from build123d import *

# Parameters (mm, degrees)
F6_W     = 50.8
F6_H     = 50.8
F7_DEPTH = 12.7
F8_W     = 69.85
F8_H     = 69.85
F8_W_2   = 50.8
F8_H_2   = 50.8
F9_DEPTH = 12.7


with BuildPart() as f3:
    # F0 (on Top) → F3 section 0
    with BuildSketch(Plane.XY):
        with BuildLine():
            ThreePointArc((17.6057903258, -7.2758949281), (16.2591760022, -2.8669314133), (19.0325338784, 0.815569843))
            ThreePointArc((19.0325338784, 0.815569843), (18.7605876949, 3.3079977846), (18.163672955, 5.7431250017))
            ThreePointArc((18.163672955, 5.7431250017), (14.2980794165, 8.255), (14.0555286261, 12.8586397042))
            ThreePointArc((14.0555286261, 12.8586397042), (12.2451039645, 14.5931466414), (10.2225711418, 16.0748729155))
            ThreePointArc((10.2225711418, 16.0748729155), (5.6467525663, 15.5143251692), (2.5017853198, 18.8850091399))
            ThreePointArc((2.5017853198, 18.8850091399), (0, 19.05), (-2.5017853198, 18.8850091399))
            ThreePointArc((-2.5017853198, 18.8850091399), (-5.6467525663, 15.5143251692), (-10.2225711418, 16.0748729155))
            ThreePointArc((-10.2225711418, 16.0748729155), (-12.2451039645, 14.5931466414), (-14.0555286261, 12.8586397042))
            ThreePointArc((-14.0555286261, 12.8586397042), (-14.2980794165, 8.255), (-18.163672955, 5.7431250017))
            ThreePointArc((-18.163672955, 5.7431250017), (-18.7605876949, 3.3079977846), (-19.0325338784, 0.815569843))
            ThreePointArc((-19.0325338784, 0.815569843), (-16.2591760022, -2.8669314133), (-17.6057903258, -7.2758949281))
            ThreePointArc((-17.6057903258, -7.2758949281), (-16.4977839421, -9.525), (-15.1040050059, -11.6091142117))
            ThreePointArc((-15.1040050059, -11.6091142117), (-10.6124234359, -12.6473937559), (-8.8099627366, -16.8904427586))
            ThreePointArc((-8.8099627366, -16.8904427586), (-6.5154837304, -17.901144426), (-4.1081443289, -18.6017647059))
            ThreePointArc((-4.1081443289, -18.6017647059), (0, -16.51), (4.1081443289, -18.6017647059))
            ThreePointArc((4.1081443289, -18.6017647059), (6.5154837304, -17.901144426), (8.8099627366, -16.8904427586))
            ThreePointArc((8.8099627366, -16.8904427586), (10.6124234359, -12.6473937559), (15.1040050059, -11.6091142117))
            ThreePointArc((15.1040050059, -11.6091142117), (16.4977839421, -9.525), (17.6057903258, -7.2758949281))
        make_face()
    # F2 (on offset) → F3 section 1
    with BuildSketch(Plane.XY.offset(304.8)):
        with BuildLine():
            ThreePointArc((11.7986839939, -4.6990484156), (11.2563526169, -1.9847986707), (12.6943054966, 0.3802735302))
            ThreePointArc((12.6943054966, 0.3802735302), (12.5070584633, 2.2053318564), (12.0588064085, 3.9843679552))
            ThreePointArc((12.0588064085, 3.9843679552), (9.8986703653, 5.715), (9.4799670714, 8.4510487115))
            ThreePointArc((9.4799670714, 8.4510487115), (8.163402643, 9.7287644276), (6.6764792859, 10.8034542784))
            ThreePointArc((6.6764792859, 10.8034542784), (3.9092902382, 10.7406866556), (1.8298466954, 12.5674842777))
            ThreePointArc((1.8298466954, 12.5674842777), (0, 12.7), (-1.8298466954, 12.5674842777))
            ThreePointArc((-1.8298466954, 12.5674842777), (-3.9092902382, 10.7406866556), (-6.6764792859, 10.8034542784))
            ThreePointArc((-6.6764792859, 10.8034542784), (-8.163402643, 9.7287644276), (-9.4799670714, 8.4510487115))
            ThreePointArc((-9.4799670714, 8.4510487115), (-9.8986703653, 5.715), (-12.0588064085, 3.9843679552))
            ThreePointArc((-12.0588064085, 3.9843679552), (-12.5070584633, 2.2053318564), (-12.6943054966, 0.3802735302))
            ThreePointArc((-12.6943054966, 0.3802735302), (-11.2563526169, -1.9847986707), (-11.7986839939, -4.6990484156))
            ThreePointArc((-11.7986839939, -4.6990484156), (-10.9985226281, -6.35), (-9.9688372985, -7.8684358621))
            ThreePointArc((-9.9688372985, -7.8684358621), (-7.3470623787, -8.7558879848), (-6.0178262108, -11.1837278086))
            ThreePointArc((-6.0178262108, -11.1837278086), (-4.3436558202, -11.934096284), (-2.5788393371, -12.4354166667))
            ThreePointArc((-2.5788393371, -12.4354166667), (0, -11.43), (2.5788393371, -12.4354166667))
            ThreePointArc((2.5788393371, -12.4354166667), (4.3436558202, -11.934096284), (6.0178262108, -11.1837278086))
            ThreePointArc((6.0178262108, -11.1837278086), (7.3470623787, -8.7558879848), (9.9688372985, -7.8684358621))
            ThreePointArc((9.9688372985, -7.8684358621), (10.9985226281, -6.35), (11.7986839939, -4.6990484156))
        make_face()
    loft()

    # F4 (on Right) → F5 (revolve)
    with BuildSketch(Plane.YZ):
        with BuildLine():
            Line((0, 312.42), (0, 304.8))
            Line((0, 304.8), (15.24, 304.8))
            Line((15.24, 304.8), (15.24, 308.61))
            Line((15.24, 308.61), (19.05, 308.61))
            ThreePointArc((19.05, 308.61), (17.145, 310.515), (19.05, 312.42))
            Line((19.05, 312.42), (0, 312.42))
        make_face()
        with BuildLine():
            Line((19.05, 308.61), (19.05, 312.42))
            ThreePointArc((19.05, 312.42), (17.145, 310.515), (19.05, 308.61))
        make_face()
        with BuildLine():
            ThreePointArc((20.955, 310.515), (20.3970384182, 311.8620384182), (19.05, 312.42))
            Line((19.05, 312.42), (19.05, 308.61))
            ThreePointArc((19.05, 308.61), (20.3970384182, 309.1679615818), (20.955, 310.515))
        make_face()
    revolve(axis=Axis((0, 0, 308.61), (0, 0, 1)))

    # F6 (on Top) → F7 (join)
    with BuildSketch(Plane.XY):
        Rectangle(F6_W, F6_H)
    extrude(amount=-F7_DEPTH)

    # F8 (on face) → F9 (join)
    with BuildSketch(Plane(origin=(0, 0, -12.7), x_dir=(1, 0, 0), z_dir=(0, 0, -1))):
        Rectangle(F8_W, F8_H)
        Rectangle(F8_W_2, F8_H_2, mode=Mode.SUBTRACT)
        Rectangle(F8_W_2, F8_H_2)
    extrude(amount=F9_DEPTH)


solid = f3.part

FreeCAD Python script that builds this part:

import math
import FreeCAD as App
import Part
import Sketcher
Q = App.Units.Quantity

doc = App.newDocument("Part")
body = doc.addObject("PartDesign::Body", "Body")

# Sketch on XY plane
sketch1 = body.newObject("Sketcher::SketchObject", "Sketch")
sketch1.AttachmentSupport = (doc.getObject("XY_Plane"), [""])
sketch1.MapMode = "FlatFace"
sketch1.addGeometry(Part.ArcOfCircle(Part.Circle(App.Vector(21, -4, 0), App.Vector(0, 0, 1), 5), math.radians(116), math.radians(224)), False)
sketch1.addGeometry(Part.ArcOfCircle(Part.Circle(App.Vector(0, 0, 0), App.Vector(0, 0, 1), 19), math.radians(2.45), math.radians(17.55)), False)
sketch1.addGeometry(Part.ArcOfCircle(Part.Circle(App.Vector(19, 11, 0), App.Vector(0, 0, 1), 5), math.radians(156), math.radians(264)), False)
sketch1.addGeometry(Part.ArcOfCircle(Part.Circle(App.Vector(0, 0, 0), App.Vector(0, 0, 1), 19), math.radians(42.45), math.radians(57.55)), False)
sketch1.addGeometry(Part.ArcOfCircle(Part.Circle(App.Vector(7, 20, 0), App.Vector(0, 0, 1), 5), math.radians(-164), math.radians(-56)), False)
sketch1.addGeometry(Part.ArcOfCircle(Part.Circle(App.Vector(0, 0, 0), App.Vector(0, 0, 1), 19), math.radians(82.45), math.radians(97.55)), False)
sketch1.addGeometry(Part.ArcOfCircle(Part.Circle(App.Vector(-7, 20, 0), App.Vector(0, 0, 1), 5), math.radians(-124), math.radians(-16)), False)
sketch1.addGeometry(Part.ArcOfCircle(Part.Circle(App.Vector(0, 0, 0), App.Vector(0, 0, 1), 19), math.radians(122.45), math.radians(137.55)), False)
sketch1.addGeometry(Part.ArcOfCircle(Part.Circle(App.Vector(-19, 11, 0), App.Vector(0, 0, 1), 5), math.radians(-84), math.radians(24)), False)
sketch1.addGeometry(Part.ArcOfCircle(Part.Circle(App.Vector(0, 0, 0), App.Vector(0, 0, 1), 19), math.radians(162.45), math.radians(177.55)), False)
sketch1.addGeometry(Part.ArcOfCircle(Part.Circle(App.Vector(-21, -4, 0), App.Vector(0, 0, 1), 5), math.radians(-44), math.radians(64)), False)
sketch1.addGeometry(Part.ArcOfCircle(Part.Circle(App.Vector(0, 0, 0), App.Vector(0, 0, 1), 19), math.radians(-157.55), math.radians(-142.45)), False)
sketch1.addGeometry(Part.ArcOfCircle(Part.Circle(App.Vector(-14, -17, 0), App.Vector(0, 0, 1), 5), math.radians(-4), math.radians(104)), False)
sketch1.addGeometry(Part.ArcOfCircle(Part.Circle(App.Vector(0, 0, 0), App.Vector(0, 0, 1), 19), math.radians(-117.55), math.radians(-102.45)), False)
sketch1.addGeometry(Part.ArcOfCircle(Part.Circle(App.Vector(0, -22, 0), App.Vector(0, 0, 1), 5), math.radians(36), math.radians(144)), False)
sketch1.addGeometry(Part.ArcOfCircle(Part.Circle(App.Vector(0, 0, 0), App.Vector(0, 0, 1), 19), math.radians(-77.55), math.radians(-62.45)), False)
sketch1.addGeometry(Part.ArcOfCircle(Part.Circle(App.Vector(14, -17, 0), App.Vector(0, 0, 1), 5), math.radians(76), math.radians(184)), False)
sketch1.addGeometry(Part.ArcOfCircle(Part.Circle(App.Vector(0, 0, 0), App.Vector(0, 0, 1), 19), math.radians(-37.55), math.radians(-22.45)), False)
sketch1.addConstraint(Sketcher.Constraint("Coincident", 0, 1, 1, 1))
sketch1.addConstraint(Sketcher.Constraint("Coincident", 1, 2, 2, 2))
sketch1.addConstraint(Sketcher.Constraint("Coincident", 2, 1, 3, 1))
sketch1.addConstraint(Sketcher.Constraint("Coincident", 3, 2, 4, 2))
sketch1.addConstraint(Sketcher.Constraint("Coincident", 4, 1, 5, 1))
sketch1.addConstraint(Sketcher.Constraint("Coincident", 5, 2, 6, 2))
sketch1.addConstraint(Sketcher.Constraint("Coincident", 6, 1, 7, 1))
sketch1.addConstraint(Sketcher.Constraint("Coincident", 7, 2, 8, 2))
sketch1.addConstraint(Sketcher.Constraint("Coincident", 8, 1, 9, 1))
sketch1.addConstraint(Sketcher.Constraint("Coincident", 9, 2, 10, 2))
sketch1.addConstraint(Sketcher.Constraint("Coincident", 10, 1, 11, 1))
sketch1.addConstraint(Sketcher.Constraint("Coincident", 11, 2, 12, 2))
sketch1.addConstraint(Sketcher.Constraint("Coincident", 12, 1, 13, 1))
sketch1.addConstraint(Sketcher.Constraint("Coincident", 13, 2, 14, 2))
sketch1.addConstraint(Sketcher.Constraint("Coincident", 14, 1, 15, 1))
sketch1.addConstraint(Sketcher.Constraint("Coincident", 15, 2, 16, 2))
sketch1.addConstraint(Sketcher.Constraint("Coincident", 16, 1, 17, 1))
sketch1.addConstraint(Sketcher.Constraint("Coincident", 17, 2, 0, 2))
sketch1.addConstraint(Sketcher.Constraint("Coincident", 1, 3, -1, 1))
sketch1.addConstraint(Sketcher.Constraint("Coincident", 3, 3, -1, 1))
sketch1.addConstraint(Sketcher.Constraint("Coincident", 5, 3, -1, 1))
sketch1.addConstraint(Sketcher.Constraint("Coincident", 7, 3, -1, 1))
sketch1.addConstraint(Sketcher.Constraint("Coincident", 9, 3, -1, 1))
sketch1.addConstraint(Sketcher.Constraint("Coincident", 11, 3, -1, 1))
sketch1.addConstraint(Sketcher.Constraint("Coincident", 13, 3, -1, 1))
sketch1.addConstraint(Sketcher.Constraint("Coincident", 15, 3, -1, 1))
sketch1.addConstraint(Sketcher.Constraint("Coincident", 17, 3, -1, 1))
sketch1.addConstraint(Sketcher.Constraint("Equal", 0, 2))
sketch1.addConstraint(Sketcher.Constraint("Equal", 1, 3))
sketch1.addConstraint(Sketcher.Constraint("Equal", 2, 4))
sketch1.addConstraint(Sketcher.Constraint("Equal", 3, 5))
sketch1.addConstraint(Sketcher.Constraint("Equal", 4, 6))
sketch1.addConstraint(Sketcher.Constraint("Equal", 5, 7))
sketch1.addConstraint(Sketcher.Constraint("Equal", 6, 8))
sketch1.addConstraint(Sketcher.Constraint("Equal", 7, 9))
sketch1.addConstraint(Sketcher.Constraint("Equal", 8, 10))
sketch1.addConstraint(Sketcher.Constraint("Equal", 9, 11))
sketch1.addConstraint(Sketcher.Constraint("Equal", 10, 12))
sketch1.addConstraint(Sketcher.Constraint("Equal", 11, 13))
sketch1.addConstraint(Sketcher.Constraint("Equal", 12, 14))
sketch1.addConstraint(Sketcher.Constraint("Equal", 13, 15))
sketch1.addConstraint(Sketcher.Constraint("Equal", 14, 16))
sketch1.addConstraint(Sketcher.Constraint("Equal", 15, 17))
sketch1.addConstraint(Sketcher.Constraint("Symmetric", 4, 3, 6, 3, -2))
sketch1.addConstraint(Sketcher.Constraint("Symmetric", 2, 3, 8, 3, -2))
sketch1.addConstraint(Sketcher.Constraint("Symmetric", 0, 3, 10, 3, -2))
sketch1.addConstraint(Sketcher.Constraint("Symmetric", 12, 3, 16, 3, -2))
sketch1.addConstraint(Sketcher.Constraint("PointOnObject", 14, 3, -2))
sketch1.addConstraint(Sketcher.Constraint("Radius", 0, Q("0.2 in")))
sketch1.addConstraint(Sketcher.Constraint("Radius", 1, Q("0.75 in")))
sketch1.addConstraint(Sketcher.Constraint("DistanceY", 14, 3, -1, 1, Q("0.85 in")))
sketch1.addConstraint(Sketcher.Constraint("DistanceY", -1, 1, 2, 3, Q("0.425 in")))
sketch1.addConstraint(Sketcher.Constraint("DistanceX", -1, 1, 0, 3, 21.261999))
sketch1.addConstraint(Sketcher.Constraint("DistanceY", 12, 3, -1, 1, 16.5389))
sketch1.addConstraint(Sketcher.Constraint("DistanceX", 3, 2, 1, 2, 7.941102))
sketch1.addConstraint(Sketcher.Constraint("DistanceX", 6, 3, 4, 1, 9.886))
sketch1.addConstraint(Sketcher.Constraint("DistanceX", 8, 3, 10, 1, 1.091698))
sketch1.addConstraint(Sketcher.Constraint("DistanceX", -1, 1, 2, 3, 18.697488))
sketch1.addConstraint(Sketcher.Constraint("DistanceX", 16, 3, 0, 1, 5.154749))

# Sketch on XY plane
sketch2 = body.newObject("Sketcher::SketchObject", "Sketch001")
sketch2.AttachmentSupport = (doc.getObject("XY_Plane"), [""])
sketch2.MapMode = "FlatFace"
sketch2.AttachmentOffset = App.Placement(App.Vector(0, 0, 12 * 25.4), App.Rotation())
sketch2.addGeometry(Part.ArcOfCircle(Part.Circle(App.Vector(15, -2.6, 0), App.Vector(0, 0, 1), 3.8), math.radians(127), math.radians(213)), False)
sketch2.addGeometry(Part.ArcOfCircle(Part.Circle(App.Vector(0, 0, 0), App.Vector(0, 0, 1), 12.7), math.radians(1.72), math.radians(18.28)), False)
sketch2.addGeometry(Part.ArcOfCircle(Part.Circle(App.Vector(13.2, 7.6, 0), App.Vector(0, 0, 1), 3.8), math.radians(167), math.radians(253)), False)
sketch2.addGeometry(Part.ArcOfCircle(Part.Circle(App.Vector(0, 0, 0), App.Vector(0, 0, 1), 12.7), math.radians(41.72), math.radians(58.28)), False)
sketch2.addGeometry(Part.ArcOfCircle(Part.Circle(App.Vector(5.2, 14.3, 0), App.Vector(0, 0, 1), 3.8), math.radians(-153), math.radians(-67)), False)
sketch2.addGeometry(Part.ArcOfCircle(Part.Circle(App.Vector(0, 0, 0), App.Vector(0, 0, 1), 12.7), math.radians(81.72), math.radians(98.28)), False)
sketch2.addGeometry(Part.ArcOfCircle(Part.Circle(App.Vector(-5.2, 14.3, 0), App.Vector(0, 0, 1), 3.8), math.radians(-113), math.radians(-27)), False)
sketch2.addGeometry(Part.ArcOfCircle(Part.Circle(App.Vector(0, 0, 0), App.Vector(0, 0, 1), 12.7), math.radians(121.72), math.radians(138.28)), False)
sketch2.addGeometry(Part.ArcOfCircle(Part.Circle(App.Vector(-13.2, 7.6, 0), App.Vector(0, 0, 1), 3.8), math.radians(-73), math.radians(13)), False)
sketch2.addGeometry(Part.ArcOfCircle(Part.Circle(App.Vector(0, 0, 0), App.Vector(0, 0, 1), 12.7), math.radians(161.72), math.radians(178.28)), False)
sketch2.addGeometry(Part.ArcOfCircle(Part.Circle(App.Vector(-15, -2.6, 0), App.Vector(0, 0, 1), 3.8), math.radians(-33), math.radians(53)), False)
sketch2.addGeometry(Part.ArcOfCircle(Part.Circle(App.Vector(0, 0, 0), App.Vector(0, 0, 1), 12.7), math.radians(-158.28), math.radians(-141.72)), False)
sketch2.addGeometry(Part.ArcOfCircle(Part.Circle(App.Vector(-9.8, -11.7, 0), App.Vector(0, 0, 1), 3.8), math.radians(7), math.radians(93)), False)
sketch2.addGeometry(Part.ArcOfCircle(Part.Circle(App.Vector(0, 0, 0), App.Vector(0, 0, 1), 12.7), math.radians(-118.28), math.radians(-101.72)), False)
sketch2.addGeometry(Part.ArcOfCircle(Part.Circle(App.Vector(0, -15.2, 0), App.Vector(0, 0, 1), 3.8), math.radians(47), math.radians(133)), False)
sketch2.addGeometry(Part.ArcOfCircle(Part.Circle(App.Vector(0, 0, 0), App.Vector(0, 0, 1), 12.7), math.radians(-78.28), math.radians(-61.72)), False)
sketch2.addGeometry(Part.ArcOfCircle(Part.Circle(App.Vector(9.8, -11.7, 0), App.Vector(0, 0, 1), 3.8), math.radians(87), math.radians(173)), False)
sketch2.addGeometry(Part.ArcOfCircle(Part.Circle(App.Vector(0, 0, 0), App.Vector(0, 0, 1), 12.7), math.radians(-38.28), math.radians(-21.72)), False)
sketch2.addConstraint(Sketcher.Constraint("Coincident", 0, 1, 1, 1))
sketch2.addConstraint(Sketcher.Constraint("Coincident", 1, 2, 2, 2))
sketch2.addConstraint(Sketcher.Constraint("Coincident", 2, 1, 3, 1))
sketch2.addConstraint(Sketcher.Constraint("Coincident", 3, 2, 4, 2))
sketch2.addConstraint(Sketcher.Constraint("Coincident", 4, 1, 5, 1))
sketch2.addConstraint(Sketcher.Constraint("Coincident", 5, 2, 6, 2))
sketch2.addConstraint(Sketcher.Constraint("Coincident", 6, 1, 7, 1))
sketch2.addConstraint(Sketcher.Constraint("Coincident", 7, 2, 8, 2))
sketch2.addConstraint(Sketcher.Constraint("Coincident", 8, 1, 9, 1))
sketch2.addConstraint(Sketcher.Constraint("Coincident", 9, 2, 10, 2))
sketch2.addConstraint(Sketcher.Constraint("Coincident", 10, 1, 11, 1))
sketch2.addConstraint(Sketcher.Constraint("Coincident", 11, 2, 12, 2))
sketch2.addConstraint(Sketcher.Constraint("Coincident", 12, 1, 13, 1))
sketch2.addConstraint(Sketcher.Constraint("Coincident", 13, 2, 14, 2))
sketch2.addConstraint(Sketcher.Constraint("Coincident", 14, 1, 15, 1))
sketch2.addConstraint(Sketcher.Constraint("Coincident", 15, 2, 16, 2))
sketch2.addConstraint(Sketcher.Constraint("Coincident", 16, 1, 17, 1))
sketch2.addConstraint(Sketcher.Constraint("Coincident", 17, 2, 0, 2))
sketch2.addConstraint(Sketcher.Constraint("Coincident", 1, 3, -1, 1))
sketch2.addConstraint(Sketcher.Constraint("Coincident", 3, 3, -1, 1))
sketch2.addConstraint(Sketcher.Constraint("Coincident", 5, 3, -1, 1))
sketch2.addConstraint(Sketcher.Constraint("Coincident", 7, 3, -1, 1))
sketch2.addConstraint(Sketcher.Constraint("Coincident", 9, 3, -1, 1))
sketch2.addConstraint(Sketcher.Constraint("Coincident", 11, 3, -1, 1))
sketch2.addConstraint(Sketcher.Constraint("Coincident", 13, 3, -1, 1))
sketch2.addConstraint(Sketcher.Constraint("Coincident", 15, 3, -1, 1))
sketch2.addConstraint(Sketcher.Constraint("Coincident", 17, 3, -1, 1))
sketch2.addConstraint(Sketcher.Constraint("Equal", 0, 2))
sketch2.addConstraint(Sketcher.Constraint("Equal", 1, 3))
sketch2.addConstraint(Sketcher.Constraint("Equal", 2, 4))
sketch2.addConstraint(Sketcher.Constraint("Equal", 3, 5))
sketch2.addConstraint(Sketcher.Constraint("Equal", 4, 6))
sketch2.addConstraint(Sketcher.Constraint("Equal", 5, 7))
sketch2.addConstraint(Sketcher.Constraint("Equal", 6, 8))
sketch2.addConstraint(Sketcher.Constraint("Equal", 7, 9))
sketch2.addConstraint(Sketcher.Constraint("Equal", 8, 10))
sketch2.addConstraint(Sketcher.Constraint("Equal", 9, 11))
sketch2.addConstraint(Sketcher.Constraint("Equal", 10, 12))
sketch2.addConstraint(Sketcher.Constraint("Equal", 11, 13))
sketch2.addConstraint(Sketcher.Constraint("Equal", 12, 14))
sketch2.addConstraint(Sketcher.Constraint("Equal", 13, 15))
sketch2.addConstraint(Sketcher.Constraint("Equal", 14, 16))
sketch2.addConstraint(Sketcher.Constraint("Equal", 15, 17))
sketch2.addConstraint(Sketcher.Constraint("Symmetric", 4, 3, 6, 3, -2))
sketch2.addConstraint(Sketcher.Constraint("Symmetric", 2, 3, 8, 3, -2))
sketch2.addConstraint(Sketcher.Constraint("Symmetric", 0, 3, 10, 3, -2))
sketch2.addConstraint(Sketcher.Constraint("Symmetric", 12, 3, 16, 3, -2))
sketch2.addConstraint(Sketcher.Constraint("PointOnObject", 14, 3, -2))
sketch2.addConstraint(Sketcher.Constraint("Radius", 1, Q("0.5 in")))
sketch2.addConstraint(Sketcher.Constraint("Radius", 0, Q("0.15 in")))
sketch2.addConstraint(Sketcher.Constraint("DistanceY", -1, 1, 2, 3, Q("0.3 in")))
sketch2.addConstraint(Sketcher.Constraint("DistanceY", 14, 3, -1, 1, Q("0.6 in")))
sketch2.addConstraint(Sketcher.Constraint("DistanceX", 8, 3, 10, 1, Q("0.0551001 in")))
sketch2.addConstraint(Sketcher.Constraint("DistanceY", 0, 3, -1, 1, 2.646398))
sketch2.addConstraint(Sketcher.Constraint("DistanceX", 1, 2, 0, 1, 0.635499))
sketch2.addConstraint(Sketcher.Constraint("DistanceX", 10, 1, 12, 3, 2.002601))
sketch2.addConstraint(Sketcher.Constraint("DistanceY", 13, 2, 12, 3, 0.760899))
sketch2.addConstraint(Sketcher.Constraint("DistanceX", -1, 1, 3, 2, 6.676479))
sketch2.addConstraint(Sketcher.Constraint("DistanceX", 4, 3, 2, 3, 7.98584))

additiveloft = body.newObject("PartDesign::AdditiveLoft", "AdditiveLoft")
additiveloft.Profile = sketch1
additiveloft.Sections = [sketch2]

# Sketch on YZ plane
sketch3 = body.newObject("Sketcher::SketchObject", "Sketch002")
sketch3.AttachmentSupport = (doc.getObject("YZ_Plane"), [""])
sketch3.MapMode = "FlatFace"
sketch3.addGeometry(Part.LineSegment(App.Vector(0, 312.4, 0), App.Vector(0, 304.8, 0)), False)
sketch3.addGeometry(Part.LineSegment(App.Vector(0, 304.8, 0), App.Vector(15.2, 304.8, 0)), False)
sketch3.addGeometry(Part.LineSegment(App.Vector(15.2, 304.8, 0), App.Vector(15.2, 308.6, 0)), False)
sketch3.addGeometry(Part.LineSegment(App.Vector(15.2, 308.6, 0), App.Vector(19.1, 308.6, 0)), False)
sketch3.addGeometry(Part.ArcOfCircle(Part.Circle(App.Vector(19.1, 310.5, 0), App.Vector(0, 0, 1), 1.9), math.radians(-90), math.radians(0)), False)
sketch3.addGeometry(Part.ArcOfCircle(Part.Circle(App.Vector(19.1, 310.5, 0), App.Vector(0, 0, 1), 1.9), math.radians(0), math.radians(90)), False)
sketch3.addGeometry(Part.LineSegment(App.Vector(19.1, 312.4, 0), App.Vector(0, 312.4, 0)), False)
sketch3.addConstraint(Sketcher.Constraint("Coincident", 0, 2, 1, 1))
sketch3.addConstraint(Sketcher.Constraint("Coincident", 1, 2, 2, 1))
sketch3.addConstraint(Sketcher.Constraint("Coincident", 2, 2, 3, 1))
sketch3.addConstraint(Sketcher.Constraint("Tangent", 3, 2, 4, 1))
sketch3.addConstraint(Sketcher.Constraint("Tangent", 4, 2, 5, 1))
sketch3.addConstraint(Sketcher.Constraint("Tangent", 5, 2, 6, 1))
sketch3.addConstraint(Sketcher.Constraint("Coincident", 6, 2, 0, 1))
sketch3.addConstraint(Sketcher.Constraint("Vertical", 0))
sketch3.addConstraint(Sketcher.Constraint("Horizontal", 1))
sketch3.addConstraint(Sketcher.Constraint("Vertical", 2))
sketch3.addConstraint(Sketcher.Constraint("Horizontal", 3))
sketch3.addConstraint(Sketcher.Constraint("Horizontal", 6))
sketch3.addConstraint(Sketcher.Constraint("Equal", 4, 5))
sketch3.addConstraint(Sketcher.Constraint("PointOnObject", 0, 2, -2))
sketch3.addConstraint(Sketcher.Constraint("Horizontal", 5, 3, 4, 2))
sketch3.addConstraint(Sketcher.Constraint("Equal", 3, 2))
sketch3.addConstraint(Sketcher.Constraint("DistanceX", 1, 1, 1, 2, Q("0.6 in")))
sketch3.addConstraint(Sketcher.Constraint("DistanceY", 0, 2, 0, 1, Q("0.3 in")))
sketch3.addConstraint(Sketcher.Constraint("DistanceY", -1, 1, 0, 2, Q("12 in")))
sketch3.addConstraint(Sketcher.Constraint("Radius", 4, Q("0.075 in")))
revolution = body.newObject("PartDesign::Revolution", "Revolution")
revolution.Profile = sketch3
revolution.ReferenceAxis = (sketch3, ["V_Axis"])
revolution.Angle = 360

# Sketch on XY plane
sketch4 = body.newObject("Sketcher::SketchObject", "Sketch003")
sketch4.AttachmentSupport = (doc.getObject("XY_Plane"), [""])
sketch4.MapMode = "FlatFace"
sketch4.addGeometry(Part.LineSegment(App.Vector(-25, 25, 0), App.Vector(-25, -25, 0)), False)
sketch4.addGeometry(Part.LineSegment(App.Vector(-25, -25, 0), App.Vector(25, -25, 0)), False)
sketch4.addGeometry(Part.LineSegment(App.Vector(25, -25, 0), App.Vector(25, 25, 0)), False)
sketch4.addGeometry(Part.LineSegment(App.Vector(25, 25, 0), App.Vector(-25, 25, 0)), False)
sketch4.addConstraint(Sketcher.Constraint("Coincident", 0, 2, 1, 1))
sketch4.addConstraint(Sketcher.Constraint("Coincident", 1, 2, 2, 1))
sketch4.addConstraint(Sketcher.Constraint("Coincident", 2, 2, 3, 1))
sketch4.addConstraint(Sketcher.Constraint("Coincident", 3, 2, 0, 1))
sketch4.addConstraint(Sketcher.Constraint("Vertical", 0))
sketch4.addConstraint(Sketcher.Constraint("Horizontal", 1))
sketch4.addConstraint(Sketcher.Constraint("Vertical", 2))
sketch4.addConstraint(Sketcher.Constraint("Horizontal", 3))
sketch4.addConstraint(Sketcher.Constraint("Symmetric", 0, 2, 2, 2, -1, 1))
sketch4.addConstraint(Sketcher.Constraint("Equal", 3, 0))
sketch4.addConstraint(Sketcher.Constraint("DistanceX", 1, 1, 1, 2, Q("2 in")))
pad1 = body.newObject("PartDesign::Pad", "Pad")
pad1.Profile = sketch4
pad1.Length = Q("0.5 in")
pad1.Reversed = True

# Sketch on XY plane
sketch5 = body.newObject("Sketcher::SketchObject", "Sketch004")
sketch5.AttachmentSupport = (doc.getObject("XY_Plane"), [""])
sketch5.MapMode = "FlatFace"
sketch5.AttachmentOffset = App.Placement(App.Vector(0, 0, -0.5 * 25.4), App.Rotation())
sketch5.addGeometry(Part.LineSegment(App.Vector(-35, -35, 0), App.Vector(-35, 35, 0)), False)
sketch5.addGeometry(Part.LineSegment(App.Vector(-35, 35, 0), App.Vector(35, 35, 0)), False)
sketch5.addGeometry(Part.LineSegment(App.Vector(35, 35, 0), App.Vector(35, -35, 0)), False)
sketch5.addGeometry(Part.LineSegment(App.Vector(35, -35, 0), App.Vector(-35, -35, 0)), False)
sketch5.addConstraint(Sketcher.Constraint("Coincident", 0, 2, 1, 1))
sketch5.addConstraint(Sketcher.Constraint("Coincident", 1, 2, 2, 1))
sketch5.addConstraint(Sketcher.Constraint("Coincident", 2, 2, 3, 1))
sketch5.addConstraint(Sketcher.Constraint("Coincident", 3, 2, 0, 1))
sketch5.addConstraint(Sketcher.Constraint("Vertical", 0))
sketch5.addConstraint(Sketcher.Constraint("Horizontal", 1))
sketch5.addConstraint(Sketcher.Constraint("Vertical", 2))
sketch5.addConstraint(Sketcher.Constraint("Horizontal", 3))
sketch5.addConstraint(Sketcher.Constraint("Symmetric", 0, 2, 2, 2, -1, 1))
sketch5.addConstraint(Sketcher.Constraint("Equal", 3, 0))
sketch5.addConstraint(Sketcher.Constraint("DistanceX", 1, 1, 1, 2, Q("2.75 in")))
pad2 = body.newObject("PartDesign::Pad", "Pad001")
pad2.Profile = sketch5
pad2.Length = Q("0.5 in")
pad2.Reversed = True

doc.recompute()
